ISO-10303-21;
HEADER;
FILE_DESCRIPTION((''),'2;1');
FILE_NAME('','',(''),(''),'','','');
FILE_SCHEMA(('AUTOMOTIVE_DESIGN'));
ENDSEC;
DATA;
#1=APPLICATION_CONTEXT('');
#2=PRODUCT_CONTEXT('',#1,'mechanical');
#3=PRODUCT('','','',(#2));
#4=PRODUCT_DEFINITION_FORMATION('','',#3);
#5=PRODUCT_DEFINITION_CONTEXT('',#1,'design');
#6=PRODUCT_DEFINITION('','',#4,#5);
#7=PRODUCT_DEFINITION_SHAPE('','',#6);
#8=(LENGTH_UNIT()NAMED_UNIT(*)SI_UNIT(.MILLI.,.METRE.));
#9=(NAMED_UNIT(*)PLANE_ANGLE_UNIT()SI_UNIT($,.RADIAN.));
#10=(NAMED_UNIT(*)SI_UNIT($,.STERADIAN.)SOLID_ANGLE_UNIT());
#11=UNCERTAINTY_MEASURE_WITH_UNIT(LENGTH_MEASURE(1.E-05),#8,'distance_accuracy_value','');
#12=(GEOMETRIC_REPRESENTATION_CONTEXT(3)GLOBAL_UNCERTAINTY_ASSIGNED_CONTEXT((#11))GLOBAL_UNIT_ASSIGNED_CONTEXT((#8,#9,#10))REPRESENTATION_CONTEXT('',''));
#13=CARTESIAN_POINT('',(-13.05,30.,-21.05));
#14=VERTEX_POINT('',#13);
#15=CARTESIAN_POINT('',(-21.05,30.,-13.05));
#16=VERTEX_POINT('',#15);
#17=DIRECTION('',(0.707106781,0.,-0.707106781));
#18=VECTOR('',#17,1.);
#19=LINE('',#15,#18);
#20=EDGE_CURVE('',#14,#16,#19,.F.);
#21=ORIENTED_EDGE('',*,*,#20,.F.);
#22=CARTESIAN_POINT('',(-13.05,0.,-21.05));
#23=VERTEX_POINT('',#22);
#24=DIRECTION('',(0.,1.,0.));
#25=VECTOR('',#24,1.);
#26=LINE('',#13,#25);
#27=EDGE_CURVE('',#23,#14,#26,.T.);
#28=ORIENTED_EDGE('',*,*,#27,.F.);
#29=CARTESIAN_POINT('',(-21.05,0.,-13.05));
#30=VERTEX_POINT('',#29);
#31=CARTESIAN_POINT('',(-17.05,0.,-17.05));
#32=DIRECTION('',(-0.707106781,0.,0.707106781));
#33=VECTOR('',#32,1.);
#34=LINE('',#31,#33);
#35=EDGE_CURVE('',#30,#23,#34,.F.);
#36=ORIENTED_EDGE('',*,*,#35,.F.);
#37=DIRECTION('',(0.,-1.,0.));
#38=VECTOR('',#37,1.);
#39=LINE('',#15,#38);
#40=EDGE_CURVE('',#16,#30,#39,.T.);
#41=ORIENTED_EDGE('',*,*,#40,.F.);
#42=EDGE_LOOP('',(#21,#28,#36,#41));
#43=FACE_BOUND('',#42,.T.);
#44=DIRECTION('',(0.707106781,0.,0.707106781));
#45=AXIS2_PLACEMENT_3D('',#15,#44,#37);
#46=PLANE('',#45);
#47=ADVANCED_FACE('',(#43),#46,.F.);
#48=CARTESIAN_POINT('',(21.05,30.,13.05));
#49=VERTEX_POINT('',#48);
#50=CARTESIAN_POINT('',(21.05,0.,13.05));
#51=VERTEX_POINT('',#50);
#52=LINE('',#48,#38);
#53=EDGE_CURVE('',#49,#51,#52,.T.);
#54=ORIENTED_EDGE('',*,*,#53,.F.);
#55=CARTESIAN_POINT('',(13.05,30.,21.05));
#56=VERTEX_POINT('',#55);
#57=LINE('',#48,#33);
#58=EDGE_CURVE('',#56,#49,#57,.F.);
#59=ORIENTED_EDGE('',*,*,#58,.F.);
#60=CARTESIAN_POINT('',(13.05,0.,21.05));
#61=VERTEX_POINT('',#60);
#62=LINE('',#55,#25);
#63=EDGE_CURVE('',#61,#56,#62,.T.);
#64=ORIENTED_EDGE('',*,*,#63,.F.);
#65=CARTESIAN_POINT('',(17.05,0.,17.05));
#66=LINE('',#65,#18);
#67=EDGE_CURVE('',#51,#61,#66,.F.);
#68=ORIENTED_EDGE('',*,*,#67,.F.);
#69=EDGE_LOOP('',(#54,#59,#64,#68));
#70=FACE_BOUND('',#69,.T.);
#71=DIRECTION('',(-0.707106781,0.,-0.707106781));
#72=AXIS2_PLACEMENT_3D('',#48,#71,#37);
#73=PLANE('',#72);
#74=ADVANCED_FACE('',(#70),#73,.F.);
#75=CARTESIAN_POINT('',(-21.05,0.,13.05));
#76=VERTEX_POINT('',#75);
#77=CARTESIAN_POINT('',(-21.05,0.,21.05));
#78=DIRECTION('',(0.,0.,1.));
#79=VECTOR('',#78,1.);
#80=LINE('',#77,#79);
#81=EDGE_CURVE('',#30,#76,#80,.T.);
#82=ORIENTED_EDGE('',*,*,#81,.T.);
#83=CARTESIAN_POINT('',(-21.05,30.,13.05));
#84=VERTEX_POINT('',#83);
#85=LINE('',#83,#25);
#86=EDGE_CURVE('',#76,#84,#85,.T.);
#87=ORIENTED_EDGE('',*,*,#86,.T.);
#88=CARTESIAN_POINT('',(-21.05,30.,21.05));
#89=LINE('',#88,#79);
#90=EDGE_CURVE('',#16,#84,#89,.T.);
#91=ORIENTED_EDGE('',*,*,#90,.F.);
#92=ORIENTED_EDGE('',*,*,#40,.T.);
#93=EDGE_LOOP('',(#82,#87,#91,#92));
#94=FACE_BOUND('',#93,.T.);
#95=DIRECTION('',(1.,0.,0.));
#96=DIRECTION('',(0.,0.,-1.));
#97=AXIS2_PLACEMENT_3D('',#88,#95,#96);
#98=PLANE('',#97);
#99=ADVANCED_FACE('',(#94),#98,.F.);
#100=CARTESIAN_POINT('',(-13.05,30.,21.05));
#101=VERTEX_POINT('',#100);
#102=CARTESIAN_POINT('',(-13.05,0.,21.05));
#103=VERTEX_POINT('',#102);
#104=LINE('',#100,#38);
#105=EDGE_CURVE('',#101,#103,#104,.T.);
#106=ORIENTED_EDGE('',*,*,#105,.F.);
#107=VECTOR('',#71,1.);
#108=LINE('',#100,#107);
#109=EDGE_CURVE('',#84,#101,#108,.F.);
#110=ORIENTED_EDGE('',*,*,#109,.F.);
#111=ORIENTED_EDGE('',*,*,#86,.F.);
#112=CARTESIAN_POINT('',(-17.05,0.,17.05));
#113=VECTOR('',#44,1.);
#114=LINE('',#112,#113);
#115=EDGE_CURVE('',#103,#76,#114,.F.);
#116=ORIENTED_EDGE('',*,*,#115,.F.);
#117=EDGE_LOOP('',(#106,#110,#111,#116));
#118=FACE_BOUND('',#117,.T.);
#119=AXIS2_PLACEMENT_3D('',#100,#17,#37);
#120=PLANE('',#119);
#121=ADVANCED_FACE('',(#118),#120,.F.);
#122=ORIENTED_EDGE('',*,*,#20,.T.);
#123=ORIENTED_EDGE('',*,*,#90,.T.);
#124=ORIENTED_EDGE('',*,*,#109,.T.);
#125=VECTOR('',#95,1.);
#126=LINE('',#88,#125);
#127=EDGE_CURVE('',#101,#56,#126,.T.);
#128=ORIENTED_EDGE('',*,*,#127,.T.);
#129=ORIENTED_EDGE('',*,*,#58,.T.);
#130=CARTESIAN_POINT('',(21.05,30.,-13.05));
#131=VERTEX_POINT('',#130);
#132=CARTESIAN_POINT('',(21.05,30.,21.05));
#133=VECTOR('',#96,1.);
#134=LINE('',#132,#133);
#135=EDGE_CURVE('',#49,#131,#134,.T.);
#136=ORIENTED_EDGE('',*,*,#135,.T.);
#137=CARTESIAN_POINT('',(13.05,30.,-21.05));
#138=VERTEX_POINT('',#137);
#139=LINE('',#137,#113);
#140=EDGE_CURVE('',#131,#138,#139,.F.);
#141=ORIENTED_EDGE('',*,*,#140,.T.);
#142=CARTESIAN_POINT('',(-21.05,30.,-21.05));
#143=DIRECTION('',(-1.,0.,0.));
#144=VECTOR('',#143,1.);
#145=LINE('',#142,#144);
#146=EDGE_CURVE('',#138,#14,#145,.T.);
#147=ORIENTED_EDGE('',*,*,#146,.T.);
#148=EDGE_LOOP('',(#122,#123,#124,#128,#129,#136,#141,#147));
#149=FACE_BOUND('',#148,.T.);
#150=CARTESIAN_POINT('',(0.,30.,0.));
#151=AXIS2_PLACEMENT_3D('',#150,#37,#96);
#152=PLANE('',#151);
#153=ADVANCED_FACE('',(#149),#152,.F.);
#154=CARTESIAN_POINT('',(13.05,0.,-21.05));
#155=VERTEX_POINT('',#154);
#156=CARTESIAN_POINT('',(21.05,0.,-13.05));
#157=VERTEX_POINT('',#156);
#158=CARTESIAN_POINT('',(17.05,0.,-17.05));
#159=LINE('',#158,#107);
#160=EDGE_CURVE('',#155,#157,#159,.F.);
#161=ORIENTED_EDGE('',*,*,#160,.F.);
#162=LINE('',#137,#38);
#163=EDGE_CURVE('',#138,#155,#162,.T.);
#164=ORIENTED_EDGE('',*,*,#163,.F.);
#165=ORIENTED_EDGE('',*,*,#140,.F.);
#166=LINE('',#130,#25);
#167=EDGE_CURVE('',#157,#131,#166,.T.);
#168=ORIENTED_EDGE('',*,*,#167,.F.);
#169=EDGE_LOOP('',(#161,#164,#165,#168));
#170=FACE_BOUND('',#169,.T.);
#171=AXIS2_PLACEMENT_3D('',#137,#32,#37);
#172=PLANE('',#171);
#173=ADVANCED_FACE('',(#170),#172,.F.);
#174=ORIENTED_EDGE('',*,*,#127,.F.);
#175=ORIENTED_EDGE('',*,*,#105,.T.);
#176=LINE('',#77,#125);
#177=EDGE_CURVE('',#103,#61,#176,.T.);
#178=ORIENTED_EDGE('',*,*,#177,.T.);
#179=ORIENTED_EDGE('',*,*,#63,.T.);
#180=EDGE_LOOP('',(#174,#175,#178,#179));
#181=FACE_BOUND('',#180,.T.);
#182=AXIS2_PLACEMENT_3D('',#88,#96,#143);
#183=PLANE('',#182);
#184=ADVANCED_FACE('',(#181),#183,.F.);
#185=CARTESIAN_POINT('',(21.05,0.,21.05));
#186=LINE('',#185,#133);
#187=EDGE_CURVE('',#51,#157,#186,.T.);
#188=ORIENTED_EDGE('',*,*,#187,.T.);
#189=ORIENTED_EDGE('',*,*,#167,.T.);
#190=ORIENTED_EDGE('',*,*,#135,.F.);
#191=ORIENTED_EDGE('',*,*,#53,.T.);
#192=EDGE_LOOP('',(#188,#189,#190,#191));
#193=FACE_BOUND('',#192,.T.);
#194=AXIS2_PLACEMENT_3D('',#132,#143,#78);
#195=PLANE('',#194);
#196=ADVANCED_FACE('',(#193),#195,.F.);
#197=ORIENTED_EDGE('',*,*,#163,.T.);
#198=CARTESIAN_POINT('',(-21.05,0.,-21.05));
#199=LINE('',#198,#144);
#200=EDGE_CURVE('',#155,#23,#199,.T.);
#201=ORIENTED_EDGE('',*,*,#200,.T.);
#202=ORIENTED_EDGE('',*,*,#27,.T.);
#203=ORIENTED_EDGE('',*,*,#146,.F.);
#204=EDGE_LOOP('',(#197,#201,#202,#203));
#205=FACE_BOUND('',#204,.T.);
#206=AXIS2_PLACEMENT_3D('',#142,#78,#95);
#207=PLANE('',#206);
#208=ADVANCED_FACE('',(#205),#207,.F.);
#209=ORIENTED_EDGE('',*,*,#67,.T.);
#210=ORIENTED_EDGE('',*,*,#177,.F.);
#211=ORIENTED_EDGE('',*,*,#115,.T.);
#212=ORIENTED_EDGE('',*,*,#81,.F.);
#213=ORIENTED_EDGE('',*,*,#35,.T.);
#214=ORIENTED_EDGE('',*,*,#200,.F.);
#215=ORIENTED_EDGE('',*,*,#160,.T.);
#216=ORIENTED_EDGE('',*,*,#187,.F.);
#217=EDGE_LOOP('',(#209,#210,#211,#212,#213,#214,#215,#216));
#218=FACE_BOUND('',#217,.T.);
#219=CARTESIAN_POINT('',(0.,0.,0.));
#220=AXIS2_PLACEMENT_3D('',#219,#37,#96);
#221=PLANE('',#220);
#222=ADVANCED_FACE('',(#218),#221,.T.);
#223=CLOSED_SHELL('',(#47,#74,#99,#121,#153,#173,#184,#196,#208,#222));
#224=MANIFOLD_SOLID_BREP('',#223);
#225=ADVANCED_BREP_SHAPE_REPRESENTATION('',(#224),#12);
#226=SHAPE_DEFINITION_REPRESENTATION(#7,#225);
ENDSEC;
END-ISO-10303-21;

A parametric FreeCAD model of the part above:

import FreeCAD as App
import Part
import Sketcher
Q = App.Units.Quantity


def edges_at(feature, points):
    """Names of the edges that pass closest to the given points."""
    edges = feature.Shape.Edges
    near = lambda p: min(range(len(edges)), key=lambda i: edges[i].distToShape(Part.Vertex(*p))[0])
    return sorted({f"Edge{near(p) + 1}" for p in points})


def add_polygon(sketch, points):
    """Adds a closed chain of lines whose ends are joined by coincident constraints."""
    first, n = sketch.GeometryCount, len(points)
    for a, b in zip(points, points[1:] + points[:1]):
        sketch.addGeometry(Part.LineSegment(App.Vector(*a, 0), App.Vector(*b, 0)), False)
    for i in range(n):
        sketch.addConstraint(Sketcher.Constraint("Coincident", first + i, 2, first + (i + 1) % n, 1))

doc = App.newDocument("Part")
body = doc.addObject("PartDesign::Body", "Body")

sketch1 = body.newObject("Sketcher::SketchObject", "Sketch")
sketch1.AttachmentSupport = (doc.getObject("XZ_Plane"), [""])
sketch1.MapMode = "FlatFace"
add_polygon(sketch1, [(-21, -21), (-21, 21), (21, 21), (21, -21)])
sketch1.addConstraint([
    Sketcher.Constraint("Vertical", 0),
    Sketcher.Constraint("Horizontal", 1),
    Sketcher.Constraint("Vertical", 2),
    Sketcher.Constraint("Horizontal", 3),
    Sketcher.Constraint("Symmetric", 0, 2, 2, 2, -1, 1),
    Sketcher.Constraint("Equal", 3, 0),
    Sketcher.Constraint("DistanceX", 1, 1, 1, 2, Q("42.1 mm")),
])
pad1 = body.newObject("PartDesign::Pad", "Pad")
pad1.Profile = sketch1
pad1.Length = 30
pad1.Reversed = True
doc.recompute()

chamfer = body.newObject("PartDesign::Chamfer", "Chamfer")
chamfer.Base = (pad1, edges_at(pad1, [
    (21.05, 15, 21.05),
    (-21.05, 15, 21.05),
    (-21.05, 15, -21.05),
    (21.05, 15, -21.05),
]))
chamfer.Size = 8

doc.recompute()
